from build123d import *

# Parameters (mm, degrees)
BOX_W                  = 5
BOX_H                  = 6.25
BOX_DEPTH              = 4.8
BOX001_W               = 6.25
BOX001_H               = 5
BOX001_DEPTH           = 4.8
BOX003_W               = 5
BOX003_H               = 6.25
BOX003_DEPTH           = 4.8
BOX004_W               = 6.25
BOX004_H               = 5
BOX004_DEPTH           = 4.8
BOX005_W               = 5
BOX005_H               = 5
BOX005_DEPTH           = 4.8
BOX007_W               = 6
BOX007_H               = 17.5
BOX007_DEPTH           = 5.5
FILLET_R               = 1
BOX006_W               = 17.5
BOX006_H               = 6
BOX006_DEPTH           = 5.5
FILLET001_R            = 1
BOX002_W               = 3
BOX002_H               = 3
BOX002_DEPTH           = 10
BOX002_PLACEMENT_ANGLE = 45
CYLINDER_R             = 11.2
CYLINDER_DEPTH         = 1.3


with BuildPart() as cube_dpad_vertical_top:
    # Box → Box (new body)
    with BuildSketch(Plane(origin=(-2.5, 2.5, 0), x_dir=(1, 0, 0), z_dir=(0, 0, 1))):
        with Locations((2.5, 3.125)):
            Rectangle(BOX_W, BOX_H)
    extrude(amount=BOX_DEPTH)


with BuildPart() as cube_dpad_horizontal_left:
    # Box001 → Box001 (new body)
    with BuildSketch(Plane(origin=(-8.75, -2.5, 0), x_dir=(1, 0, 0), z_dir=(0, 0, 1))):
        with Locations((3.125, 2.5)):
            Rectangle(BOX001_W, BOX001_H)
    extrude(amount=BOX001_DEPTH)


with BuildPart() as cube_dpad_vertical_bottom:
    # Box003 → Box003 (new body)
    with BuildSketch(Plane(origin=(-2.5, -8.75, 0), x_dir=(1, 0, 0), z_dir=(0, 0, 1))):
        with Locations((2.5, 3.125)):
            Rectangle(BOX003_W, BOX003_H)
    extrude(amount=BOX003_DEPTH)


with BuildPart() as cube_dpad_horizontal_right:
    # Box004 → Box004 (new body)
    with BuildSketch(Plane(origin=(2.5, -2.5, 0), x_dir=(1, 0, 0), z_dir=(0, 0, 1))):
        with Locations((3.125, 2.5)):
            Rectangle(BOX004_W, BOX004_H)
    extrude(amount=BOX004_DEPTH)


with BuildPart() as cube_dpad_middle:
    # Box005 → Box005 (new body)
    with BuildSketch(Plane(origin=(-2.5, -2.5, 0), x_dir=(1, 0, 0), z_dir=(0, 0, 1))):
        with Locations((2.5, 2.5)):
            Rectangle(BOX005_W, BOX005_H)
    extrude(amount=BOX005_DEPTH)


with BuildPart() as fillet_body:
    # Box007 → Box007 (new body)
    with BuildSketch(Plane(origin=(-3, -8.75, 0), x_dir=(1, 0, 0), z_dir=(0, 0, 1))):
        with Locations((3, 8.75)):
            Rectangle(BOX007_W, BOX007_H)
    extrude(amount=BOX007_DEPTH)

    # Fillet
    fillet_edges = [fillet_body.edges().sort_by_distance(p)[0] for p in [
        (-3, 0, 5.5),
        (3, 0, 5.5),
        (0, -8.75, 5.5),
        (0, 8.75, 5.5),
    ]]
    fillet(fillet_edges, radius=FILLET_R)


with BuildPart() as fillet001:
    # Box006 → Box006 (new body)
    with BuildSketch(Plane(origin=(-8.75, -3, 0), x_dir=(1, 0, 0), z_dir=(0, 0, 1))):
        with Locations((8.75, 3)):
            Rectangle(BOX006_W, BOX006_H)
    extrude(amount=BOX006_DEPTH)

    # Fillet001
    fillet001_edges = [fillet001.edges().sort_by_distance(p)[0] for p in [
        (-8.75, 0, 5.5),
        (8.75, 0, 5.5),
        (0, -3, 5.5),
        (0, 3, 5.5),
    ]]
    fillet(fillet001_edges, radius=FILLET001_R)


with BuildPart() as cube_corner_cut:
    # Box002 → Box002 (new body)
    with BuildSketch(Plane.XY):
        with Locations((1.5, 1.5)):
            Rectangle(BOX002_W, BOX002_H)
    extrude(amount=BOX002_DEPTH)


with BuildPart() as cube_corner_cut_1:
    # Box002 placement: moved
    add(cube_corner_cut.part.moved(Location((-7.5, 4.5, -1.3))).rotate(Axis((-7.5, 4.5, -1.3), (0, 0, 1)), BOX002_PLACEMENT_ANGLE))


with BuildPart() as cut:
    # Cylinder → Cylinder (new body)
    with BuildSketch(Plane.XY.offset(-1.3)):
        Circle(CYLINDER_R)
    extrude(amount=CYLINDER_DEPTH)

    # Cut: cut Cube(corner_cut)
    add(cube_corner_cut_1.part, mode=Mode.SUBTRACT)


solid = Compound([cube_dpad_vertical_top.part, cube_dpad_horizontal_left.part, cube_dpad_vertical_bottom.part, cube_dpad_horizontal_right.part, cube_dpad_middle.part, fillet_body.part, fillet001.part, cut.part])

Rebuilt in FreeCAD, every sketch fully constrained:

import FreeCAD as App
import Part
import Sketcher


def edges_at(feature, points):
    """Names of the edges that pass closest to the given points."""
    edges = feature.Shape.Edges
    near = lambda p: min(range(len(edges)), key=lambda i: edges[i].distToShape(Part.Vertex(*p))[0])
    return sorted({f"Edge{near(p) + 1}" for p in points})

doc = App.newDocument("Part")
params = doc.addObject("Spreadsheet::Sheet", "Params")
for row, (alias, value) in enumerate([
    ("sketch1_width", "5 mm"),
    ("sketch1_height", "6.25 mm"),
    ("pad1_length", "4.8 mm"),
    ("sketch2_height", "5 mm"),
    ("sketch2_width", "6.25 mm"),
    ("pad2_length", "4.8 mm"),
    ("sketch3_width", "5 mm"),
    ("sketch3_height", "6.25 mm"),
    ("pad3_length", "4.8 mm"),
    ("sketch4_height", "5 mm"),
    ("sketch4_width", "6.25 mm"),
    ("pad4_length", "4.8 mm"),
    ("sketch5_width", "5 mm"),
    ("pad5_length", "4.8 mm"),
    ("sketch6_width", "6 mm"),
    ("sketch6_height", "17.5 mm"),
    ("pad6_length", "5.5 mm"),
    ("fillet_radius", "1 mm"),
    ("sketch7_height", "6 mm"),
    ("sketch7_width", "17.5 mm"),
    ("pad7_length", "5.5 mm"),
    ("fillet2_radius", "1 mm"),
    ("sketch8_width", "3 mm"),
    ("pad8_length", "10 mm"),
    ("sketch9_diameter", "22.4 mm"),
    ("pad9_length", "1.3 mm"),
], start=1):
    params.set(f"A{row}", alias)
    params.set(f"B{row}", "=" + value)
    params.setAlias(f"B{row}", alias)

body = doc.addObject("PartDesign::Body", "Body")

sketch1 = body.newObject("Sketcher::SketchObject", "Sketch")
sketch1.AttachmentSupport = (doc.getObject("XY_Plane"), [""])
sketch1.MapMode = "FlatFace"
sketch1.addGeometry(Part.LineSegment(App.Vector(-2, 9, 0), App.Vector(-2, 2, 0)), False)
sketch1.addGeometry(Part.LineSegment(App.Vector(-2, 2, 0), App.Vector(2, 2, 0)), False)
sketch1.addGeometry(Part.LineSegment(App.Vector(2, 2, 0), App.Vector(2, 9, 0)), False)
sketch1.addGeometry(Part.LineSegment(App.Vector(2, 9, 0), App.Vector(-2, 9, 0)), False)
sketch1.addConstraint(Sketcher.Constraint("Coincident", 0, 2, 1, 1))
sketch1.addConstraint(Sketcher.Constraint("Coincident", 1, 2, 2, 1))
sketch1.addConstraint(Sketcher.Constraint("Coincident", 2, 2, 3, 1))
sketch1.addConstraint(Sketcher.Constraint("Coincident", 3, 2, 0, 1))
sketch1.addConstraint(Sketcher.Constraint("Vertical", 0))
sketch1.addConstraint(Sketcher.Constraint("Horizontal", 1))
sketch1.addConstraint(Sketcher.Constraint("Vertical", 2))
sketch1.addConstraint(Sketcher.Constraint("Horizontal", 3))
sketch1.addConstraint(Sketcher.Constraint("DistanceX", 1, 1, 1, 2, 5.0))
sketch1.addConstraint(Sketcher.Constraint("DistanceY", 0, 2, 0, 1, 6.25))
sketch1.addConstraint(Sketcher.Constraint("DistanceX", 0, 2, -1, 1, 2.5))
sketch1.addConstraint(Sketcher.Constraint("DistanceY", -1, 1, 0, 2, 2.5))
sketch1.setExpression("Constraints[8]", "Params.sketch1_width")
sketch1.setExpression("Constraints[9]", "Params.sketch1_height")
pad1 = body.newObject("PartDesign::Pad", "Pad")
pad1.Profile = sketch1
pad1.setExpression("Length", "Params.pad1_length")
body2 = doc.addObject("PartDesign::Body", "Body001")

sketch2 = body2.newObject("Sketcher::SketchObject", "Sketch001")
sketch2.AttachmentSupport = (doc.getObject("XY_Plane001"), [""])
sketch2.MapMode = "FlatFace"
sketch2.addGeometry(Part.LineSegment(App.Vector(-9, 2, 0), App.Vector(-9, -2, 0)), False)
sketch2.addGeometry(Part.LineSegment(App.Vector(-9, -2, 0), App.Vector(-2, -2, 0)), False)
sketch2.addGeometry(Part.LineSegment(App.Vector(-2, -2, 0), App.Vector(-2, 2, 0)), False)
sketch2.addGeometry(Part.LineSegment(App.Vector(-2, 2, 0), App.Vector(-9, 2, 0)), False)
sketch2.addConstraint(Sketcher.Constraint("Coincident", 0, 2, 1, 1))
sketch2.addConstraint(Sketcher.Constraint("Coincident", 1, 2, 2, 1))
sketch2.addConstraint(Sketcher.Constraint("Coincident", 2, 2, 3, 1))
sketch2.addConstraint(Sketcher.Constraint("Coincident", 3, 2, 0, 1))
sketch2.addConstraint(Sketcher.Constraint("Vertical", 0))
sketch2.addConstraint(Sketcher.Constraint("Horizontal", 1))
sketch2.addConstraint(Sketcher.Constraint("Vertical", 2))
sketch2.addConstraint(Sketcher.Constraint("Horizontal", 3))
sketch2.addConstraint(Sketcher.Constraint("DistanceY", 0, 2, 0, 1, 5.0))
sketch2.addConstraint(Sketcher.Constraint("DistanceX", 1, 1, 1, 2, 6.25))
sketch2.addConstraint(Sketcher.Constraint("DistanceY", 0, 2, -1, 1, 2.5))
sketch2.addConstraint(Sketcher.Constraint("DistanceX", 1, 2, -1, 1, 2.5))
sketch2.setExpression("Constraints[8]", "Params.sketch2_height")
sketch2.setExpression("Constraints[9]", "Params.sketch2_width")
pad2 = body2.newObject("PartDesign::Pad", "Pad001")
pad2.Profile = sketch2
pad2.setExpression("Length", "Params.pad2_length")
body3 = doc.addObject("PartDesign::Body", "Body002")

sketch3 = body3.newObject("Sketcher::SketchObject", "Sketch002")
sketch3.AttachmentSupport = (doc.getObject("XY_Plane002"), [""])
sketch3.MapMode = "FlatFace"
sketch3.addGeometry(Part.LineSegment(App.Vector(-2, -2, 0), App.Vector(-2, -9, 0)), False)
sketch3.addGeometry(Part.LineSegment(App.Vector(-2, -9, 0), App.Vector(2, -9, 0)), False)
sketch3.addGeometry(Part.LineSegment(App.Vector(2, -9, 0), App.Vector(2, -2, 0)), False)
sketch3.addGeometry(Part.LineSegment(App.Vector(2, -2, 0), App.Vector(-2, -2, 0)), False)
sketch3.addConstraint(Sketcher.Constraint("Coincident", 0, 2, 1, 1))
sketch3.addConstraint(Sketcher.Constraint("Coincident", 1, 2, 2, 1))
sketch3.addConstraint(Sketcher.Constraint("Coincident", 2, 2, 3, 1))
sketch3.addConstraint(Sketcher.Constraint("Coincident", 3, 2, 0, 1))
sketch3.addConstraint(Sketcher.Constraint("Vertical", 0))
sketch3.addConstraint(Sketcher.Constraint("Horizontal", 1))
sketch3.addConstraint(Sketcher.Constraint("Vertical", 2))
sketch3.addConstraint(Sketcher.Constraint("Horizontal", 3))
sketch3.addConstraint(Sketcher.Constraint("DistanceX", 1, 1, 1, 2, 5.0))
sketch3.addConstraint(Sketcher.Constraint("DistanceY", 0, 2, 0, 1, 6.25))
sketch3.addConstraint(Sketcher.Constraint("DistanceX", 0, 2, -1, 1, 2.5))
sketch3.addConstraint(Sketcher.Constraint("DistanceY", 2, 2, -1, 1, 2.5))
sketch3.setExpression("Constraints[8]", "Params.sketch3_width")
sketch3.setExpression("Constraints[9]", "Params.sketch3_height")
pad3 = body3.newObject("PartDesign::Pad", "Pad002")
pad3.Profile = sketch3
pad3.setExpression("Length", "Params.pad3_length")
body4 = doc.addObject("PartDesign::Body", "Body003")

sketch4 = body4.newObject("Sketcher::SketchObject", "Sketch003")
sketch4.AttachmentSupport = (doc.getObject("XY_Plane003"), [""])
sketch4.MapMode = "FlatFace"
sketch4.addGeometry(Part.LineSegment(App.Vector(2, 2, 0), App.Vector(2, -2, 0)), False)
sketch4.addGeometry(Part.LineSegment(App.Vector(2, -2, 0), App.Vector(9, -2, 0)), False)
sketch4.addGeometry(Part.LineSegment(App.Vector(9, -2, 0), App.Vector(9, 2, 0)), False)
sketch4.addGeometry(Part.LineSegment(App.Vector(9, 2, 0), App.Vector(2, 2, 0)), False)
sketch4.addConstraint(Sketcher.Constraint("Coincident", 0, 2, 1, 1))
sketch4.addConstraint(Sketcher.Constraint("Coincident", 1, 2, 2, 1))
sketch4.addConstraint(Sketcher.Constraint("Coincident", 2, 2, 3, 1))
sketch4.addConstraint(Sketcher.Constraint("Coincident", 3, 2, 0, 1))
sketch4.addConstraint(Sketcher.Constraint("Vertical", 0))
sketch4.addConstraint(Sketcher.Constraint("Horizontal", 1))
sketch4.addConstraint(Sketcher.Constraint("Vertical", 2))
sketch4.addConstraint(Sketcher.Constraint("Horizontal", 3))
sketch4.addConstraint(Sketcher.Constraint("DistanceY", 0, 2, 0, 1, 5.0))
sketch4.addConstraint(Sketcher.Constraint("DistanceX", 1, 1, 1, 2, 6.25))
sketch4.addConstraint(Sketcher.Constraint("DistanceX", -1, 1, 0, 2, 2.5))
sketch4.addConstraint(Sketcher.Constraint("DistanceY", 0, 2, -1, 1, 2.5))
sketch4.setExpression("Constraints[8]", "Params.sketch4_height")
sketch4.setExpression("Constraints[9]", "Params.sketch4_width")
pad4 = body4.newObject("PartDesign::Pad", "Pad003")
pad4.Profile = sketch4
pad4.setExpression("Length", "Params.pad4_length")
body5 = doc.addObject("PartDesign::Body", "Body004")

sketch5 = body5.newObject("Sketcher::SketchObject", "Sketch004")
sketch5.AttachmentSupport = (doc.getObject("XY_Plane004"), [""])
sketch5.MapMode = "FlatFace"
sketch5.addGeometry(Part.LineSegment(App.Vector(-2, 2, 0), App.Vector(-2, -2, 0)), False)
sketch5.addGeometry(Part.LineSegment(App.Vector(-2, -2, 0), App.Vector(2, -2, 0)), False)
sketch5.addGeometry(Part.LineSegment(App.Vector(2, -2, 0), App.Vector(2, 2, 0)), False)
sketch5.addGeometry(Part.LineSegment(App.Vector(2, 2, 0), App.Vector(-2, 2, 0)), False)
sketch5.addConstraint(Sketcher.Constraint("Coincident", 0, 2, 1, 1))
sketch5.addConstraint(Sketcher.Constraint("Coincident", 1, 2, 2, 1))
sketch5.addConstraint(Sketcher.Constraint("Coincident", 2, 2, 3, 1))
sketch5.addConstraint(Sketcher.Constraint("Coincident", 3, 2, 0, 1))
sketch5.addConstraint(Sketcher.Constraint("Vertical", 0))
sketch5.addConstraint(Sketcher.Constraint("Horizontal", 1))
sketch5.addConstraint(Sketcher.Constraint("Vertical", 2))
sketch5.addConstraint(Sketcher.Constraint("Horizontal", 3))
sketch5.addConstraint(Sketcher.Constraint("Symmetric", 0, 2, 2, 2, -1, 1))
sketch5.addConstraint(Sketcher.Constraint("Equal", 3, 0))
sketch5.addConstraint(Sketcher.Constraint("DistanceX", 1, 1, 1, 2, 5.0))
sketch5.setExpression("Constraints[10]", "Params.sketch5_width")
pad5 = body5.newObject("PartDesign::Pad", "Pad004")
pad5.Profile = sketch5
pad5.setExpression("Length", "Params.pad5_length")
body6 = doc.addObject("PartDesign::Body", "Body005")

sketch6 = body6.newObject("Sketcher::SketchObject", "Sketch005")
sketch6.AttachmentSupport = (doc.getObject("XY_Plane005"), [""])
sketch6.MapMode = "FlatFace"
sketch6.addGeometry(Part.LineSegment(App.Vector(-3, 9, 0), App.Vector(-3, -9, 0)), False)
sketch6.addGeometry(Part.LineSegment(App.Vector(-3, -9, 0), App.Vector(3, -9, 0)), False)
sketch6.addGeometry(Part.LineSegment(App.Vector(3, -9, 0), App.Vector(3, 9, 0)), False)
sketch6.addGeometry(Part.LineSegment(App.Vector(3, 9, 0), App.Vector(-3, 9, 0)), False)
sketch6.addConstraint(Sketcher.Constraint("Coincident", 0, 2, 1, 1))
sketch6.addConstraint(Sketcher.Constraint("Coincident", 1, 2, 2, 1))
sketch6.addConstraint(Sketcher.Constraint("Coincident", 2, 2, 3, 1))
sketch6.addConstraint(Sketcher.Constraint("Coincident", 3, 2, 0, 1))
sketch6.addConstraint(Sketcher.Constraint("Vertical", 0))
sketch6.addConstraint(Sketcher.Constraint("Horizontal", 1))
sketch6.addConstraint(Sketcher.Constraint("Vertical", 2))
sketch6.addConstraint(Sketcher.Constraint("Horizontal", 3))
sketch6.addConstraint(Sketcher.Constraint("Symmetric", 0, 2, 2, 2, -1, 1))
sketch6.addConstraint(Sketcher.Constraint("DistanceX", 1, 1, 1, 2, 6.0))
sketch6.addConstraint(Sketcher.Constraint("DistanceY", 0, 2, 0, 1, 17.5))
sketch6.setExpression("Constraints[9]", "Params.sketch6_width")
sketch6.setExpression("Constraints[10]", "Params.sketch6_height")
pad6 = body6.newObject("PartDesign::Pad", "Pad005")
pad6.Profile = sketch6
pad6.setExpression("Length", "Params.pad6_length")
doc.recompute()

fillet = body6.newObject("PartDesign::Fillet", "Fillet")
fillet.Base = (pad6, edges_at(pad6, [
    (-3, 0, 5.5),
    (3, 0, 5.5),
    (0, -8.75, 5.5),
    (0, 8.75, 5.5),
]))
fillet.setExpression("Radius", "Params.fillet_radius")
body7 = doc.addObject("PartDesign::Body", "Body006")

sketch7 = body7.newObject("Sketcher::SketchObject", "Sketch006")
sketch7.AttachmentSupport = (doc.getObject("XY_Plane006"), [""])
sketch7.MapMode = "FlatFace"
sketch7.addGeometry(Part.LineSegment(App.Vector(-9, 3, 0), App.Vector(-9, -3, 0)), False)
sketch7.addGeometry(Part.LineSegment(App.Vector(-9, -3, 0), App.Vector(9, -3, 0)), False)
sketch7.addGeometry(Part.LineSegment(App.Vector(9, -3, 0), App.Vector(9, 3, 0)), False)
sketch7.addGeometry(Part.LineSegment(App.Vector(9, 3, 0), App.Vector(-9, 3, 0)), False)
sketch7.addConstraint(Sketcher.Constraint("Coincident", 0, 2, 1, 1))
sketch7.addConstraint(Sketcher.Constraint("Coincident", 1, 2, 2, 1))
sketch7.addConstraint(Sketcher.Constraint("Coincident", 2, 2, 3, 1))
sketch7.addConstraint(Sketcher.Constraint("Coincident", 3, 2, 0, 1))
sketch7.addConstraint(Sketcher.Constraint("Vertical", 0))
sketch7.addConstraint(Sketcher.Constraint("Horizontal", 1))
sketch7.addConstraint(Sketcher.Constraint("Vertical", 2))
sketch7.addConstraint(Sketcher.Constraint("Horizontal", 3))
sketch7.addConstraint(Sketcher.Constraint("Symmetric", 0, 2, 2, 2, -1, 1))
sketch7.addConstraint(Sketcher.Constraint("DistanceY", 0, 2, 0, 1, 6.0))
sketch7.addConstraint(Sketcher.Constraint("DistanceX", 1, 1, 1, 2, 17.5))
sketch7.setExpression("Constraints[9]", "Params.sketch7_height")
sketch7.setExpression("Constraints[10]", "Params.sketch7_width")
pad7 = body7.newObject("PartDesign::Pad", "Pad006")
pad7.Profile = sketch7
pad7.setExpression("Length", "Params.pad7_length")
doc.recompute()

fillet2 = body7.newObject("PartDesign::Fillet", "Fillet001")
fillet2.Base = (pad7, edges_at(pad7, [
    (-8.75, 0, 5.5),
    (8.75, 0, 5.5),
    (0, -3, 5.5),
    (0, 3, 5.5),
]))
fillet2.setExpression("Radius", "Params.fillet2_radius")
body8 = doc.addObject("PartDesign::Body", "Body007")

sketch8 = body8.newObject("Sketcher::SketchObject", "Sketch007")
sketch8.AttachmentSupport = (doc.getObject("XY_Plane007"), [""])
sketch8.MapMode = "FlatFace"
sketch8.addGeometry(Part.LineSegment(App.Vector(0, 3, 0), App.Vector(0, 0, 0)), False)
sketch8.addGeometry(Part.LineSegment(App.Vector(0, 0, 0), App.Vector(3, 0, 0)), False)
sketch8.addGeometry(Part.LineSegment(App.Vector(3, 0, 0), App.Vector(3, 3, 0)), False)
sketch8.addGeometry(Part.LineSegment(App.Vector(3, 3, 0), App.Vector(0, 3, 0)), False)
sketch8.addConstraint(Sketcher.Constraint("Coincident", 0, 2, 1, 1))
sketch8.addConstraint(Sketcher.Constraint("Coincident", 1, 2, 2, 1))
sketch8.addConstraint(Sketcher.Constraint("Coincident", 2, 2, 3, 1))
sketch8.addConstraint(Sketcher.Constraint("Coincident", 3, 2, 0, 1))
sketch8.addConstraint(Sketcher.Constraint("Vertical", 0))
sketch8.addConstraint(Sketcher.Constraint("Horizontal", 1))
sketch8.addConstraint(Sketcher.Constraint("Vertical", 2))
sketch8.addConstraint(Sketcher.Constraint("Horizontal", 3))
sketch8.addConstraint(Sketcher.Constraint("Coincident", 0, 2, -1, 1))
sketch8.addConstraint(Sketcher.Constraint("Equal", 3, 0))
sketch8.addConstraint(Sketcher.Constraint("DistanceX", 1, 1, 1, 2, 3.0))
sketch8.setExpression("Constraints[10]", "Params.sketch8_width")
pad8 = body8.newObject("PartDesign::Pad", "Pad007")
pad8.Profile = sketch8
pad8.setExpression("Length", "Params.pad8_length")
body9 = doc.addObject("PartDesign::Body", "Body008")
doc.recompute()

body8.Placement = App.Placement(App.Vector(-7.5, 4.5, -1.3), App.Rotation(App.Vector(0, 0, 1), 45))
boolean = body9.newObject("PartDesign::Boolean", "Boolean")
boolean.Type = "Fuse"
boolean.addObjects([body8])
body10 = doc.addObject("PartDesign::Body", "Body009")

sketch9 = body10.newObject("Sketcher::SketchObject", "Sketch008")
sketch9.AttachmentSupport = (doc.getObject("XY_Plane009"), [""])
sketch9.MapMode = "FlatFace"
sketch9.AttachmentOffset = App.Placement(App.Vector(0, 0, -1.3), App.Rotation())
sketch9.addGeometry(Part.Circle(App.Vector(0, 0, 0), App.Vector(0, 0, 1), 11), False)
sketch9.addConstraint(Sketcher.Constraint("Coincident", 0, 3, -1, 1))
sketch9.addConstraint(Sketcher.Constraint("Diameter", 0, 22.4))
sketch9.setExpression("Constraints[1]", "Params.sketch9_diameter")
pad9 = body10.newObject("PartDesign::Pad", "Pad008")
pad9.Profile = sketch9
pad9.setExpression("Length", "Params.pad9_length")
doc.recompute()

boolean2 = body10.newObject("PartDesign::Boolean", "Boolean001")
boolean2.Type = "Cut"
boolean2.addObjects([body9])

doc.recompute()
